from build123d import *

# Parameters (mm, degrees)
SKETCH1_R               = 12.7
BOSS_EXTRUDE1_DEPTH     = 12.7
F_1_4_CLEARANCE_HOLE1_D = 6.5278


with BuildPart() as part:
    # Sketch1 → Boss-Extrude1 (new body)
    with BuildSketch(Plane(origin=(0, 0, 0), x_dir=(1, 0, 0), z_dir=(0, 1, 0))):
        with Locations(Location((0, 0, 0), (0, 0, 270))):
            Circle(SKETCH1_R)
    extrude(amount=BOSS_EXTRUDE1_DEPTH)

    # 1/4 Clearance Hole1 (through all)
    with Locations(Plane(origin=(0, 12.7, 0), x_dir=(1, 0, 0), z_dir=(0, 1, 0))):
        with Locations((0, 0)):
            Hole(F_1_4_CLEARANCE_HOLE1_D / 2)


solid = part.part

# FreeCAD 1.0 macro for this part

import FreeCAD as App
import Part
import Sketcher
Q = App.Units.Quantity

doc = App.newDocument("Part")
params = doc.addObject("Spreadsheet::Sheet", "Params")
for row, (alias, value) in enumerate([
    ("sketch1_diameter", "1 in"),
    ("pad1_length", "0.5 in"),
    ("sketch2_diameter", "0.257 in"),
    ("hole_diameter", "0.257 in"),
], start=1):
    params.set(f"A{row}", alias)
    params.set(f"B{row}", "=" + value)
    params.setAlias(f"B{row}", alias)

body = doc.addObject("PartDesign::Body", "Body")

# Sketch on XZ plane
sketch1 = body.newObject("Sketcher::SketchObject", "Sketch")
sketch1.AttachmentSupport = (doc.getObject("XZ_Plane"), [""])
sketch1.MapMode = "FlatFace"
sketch1.addGeometry(Part.Circle(App.Vector(0, 0, 0), App.Vector(0, 0, 1), 13), False)
sketch1.addConstraint([
    Sketcher.Constraint("Coincident", 0, 3, -1, 1),
    Sketcher.Constraint("Diameter", 0, Q("1 in")),
])
sketch1.setExpression("Constraints[1]", "Params.sketch1_diameter")
pad1 = body.newObject("PartDesign::Pad", "Pad")
pad1.Profile = sketch1
pad1.setExpression("Length", "Params.pad1_length")
pad1.Reversed = True

# Sketch on XZ plane
sketch2 = body.newObject("Sketcher::SketchObject", "Sketch001")
sketch2.AttachmentSupport = (doc.getObject("XZ_Plane"), [""])
sketch2.MapMode = "FlatFace"
sketch2.AttachmentOffset = App.Placement(App.Vector(0, 0, -0.5 * 25.4), App.Rotation())
sketch2.addGeometry(Part.Circle(App.Vector(0, 0, 0), App.Vector(0, 0, 1), 3.3), False)
sketch2.addConstraint([
    Sketcher.Constraint("Coincident", 0, 3, -1, 1),
    Sketcher.Constraint("Diameter", 0, Q("0.257 in")),
])
sketch2.setExpression("Constraints[1]", "Params.sketch2_diameter")
doc.recompute()
hole = body.newObject("PartDesign::Hole", "Hole")
hole.Profile = sketch2
hole.ThreadType = "None"
hole.setExpression("Diameter", "Params.hole_diameter")
hole.DepthType = "ThroughAll"
hole.Reversed = True

doc.recompute()
